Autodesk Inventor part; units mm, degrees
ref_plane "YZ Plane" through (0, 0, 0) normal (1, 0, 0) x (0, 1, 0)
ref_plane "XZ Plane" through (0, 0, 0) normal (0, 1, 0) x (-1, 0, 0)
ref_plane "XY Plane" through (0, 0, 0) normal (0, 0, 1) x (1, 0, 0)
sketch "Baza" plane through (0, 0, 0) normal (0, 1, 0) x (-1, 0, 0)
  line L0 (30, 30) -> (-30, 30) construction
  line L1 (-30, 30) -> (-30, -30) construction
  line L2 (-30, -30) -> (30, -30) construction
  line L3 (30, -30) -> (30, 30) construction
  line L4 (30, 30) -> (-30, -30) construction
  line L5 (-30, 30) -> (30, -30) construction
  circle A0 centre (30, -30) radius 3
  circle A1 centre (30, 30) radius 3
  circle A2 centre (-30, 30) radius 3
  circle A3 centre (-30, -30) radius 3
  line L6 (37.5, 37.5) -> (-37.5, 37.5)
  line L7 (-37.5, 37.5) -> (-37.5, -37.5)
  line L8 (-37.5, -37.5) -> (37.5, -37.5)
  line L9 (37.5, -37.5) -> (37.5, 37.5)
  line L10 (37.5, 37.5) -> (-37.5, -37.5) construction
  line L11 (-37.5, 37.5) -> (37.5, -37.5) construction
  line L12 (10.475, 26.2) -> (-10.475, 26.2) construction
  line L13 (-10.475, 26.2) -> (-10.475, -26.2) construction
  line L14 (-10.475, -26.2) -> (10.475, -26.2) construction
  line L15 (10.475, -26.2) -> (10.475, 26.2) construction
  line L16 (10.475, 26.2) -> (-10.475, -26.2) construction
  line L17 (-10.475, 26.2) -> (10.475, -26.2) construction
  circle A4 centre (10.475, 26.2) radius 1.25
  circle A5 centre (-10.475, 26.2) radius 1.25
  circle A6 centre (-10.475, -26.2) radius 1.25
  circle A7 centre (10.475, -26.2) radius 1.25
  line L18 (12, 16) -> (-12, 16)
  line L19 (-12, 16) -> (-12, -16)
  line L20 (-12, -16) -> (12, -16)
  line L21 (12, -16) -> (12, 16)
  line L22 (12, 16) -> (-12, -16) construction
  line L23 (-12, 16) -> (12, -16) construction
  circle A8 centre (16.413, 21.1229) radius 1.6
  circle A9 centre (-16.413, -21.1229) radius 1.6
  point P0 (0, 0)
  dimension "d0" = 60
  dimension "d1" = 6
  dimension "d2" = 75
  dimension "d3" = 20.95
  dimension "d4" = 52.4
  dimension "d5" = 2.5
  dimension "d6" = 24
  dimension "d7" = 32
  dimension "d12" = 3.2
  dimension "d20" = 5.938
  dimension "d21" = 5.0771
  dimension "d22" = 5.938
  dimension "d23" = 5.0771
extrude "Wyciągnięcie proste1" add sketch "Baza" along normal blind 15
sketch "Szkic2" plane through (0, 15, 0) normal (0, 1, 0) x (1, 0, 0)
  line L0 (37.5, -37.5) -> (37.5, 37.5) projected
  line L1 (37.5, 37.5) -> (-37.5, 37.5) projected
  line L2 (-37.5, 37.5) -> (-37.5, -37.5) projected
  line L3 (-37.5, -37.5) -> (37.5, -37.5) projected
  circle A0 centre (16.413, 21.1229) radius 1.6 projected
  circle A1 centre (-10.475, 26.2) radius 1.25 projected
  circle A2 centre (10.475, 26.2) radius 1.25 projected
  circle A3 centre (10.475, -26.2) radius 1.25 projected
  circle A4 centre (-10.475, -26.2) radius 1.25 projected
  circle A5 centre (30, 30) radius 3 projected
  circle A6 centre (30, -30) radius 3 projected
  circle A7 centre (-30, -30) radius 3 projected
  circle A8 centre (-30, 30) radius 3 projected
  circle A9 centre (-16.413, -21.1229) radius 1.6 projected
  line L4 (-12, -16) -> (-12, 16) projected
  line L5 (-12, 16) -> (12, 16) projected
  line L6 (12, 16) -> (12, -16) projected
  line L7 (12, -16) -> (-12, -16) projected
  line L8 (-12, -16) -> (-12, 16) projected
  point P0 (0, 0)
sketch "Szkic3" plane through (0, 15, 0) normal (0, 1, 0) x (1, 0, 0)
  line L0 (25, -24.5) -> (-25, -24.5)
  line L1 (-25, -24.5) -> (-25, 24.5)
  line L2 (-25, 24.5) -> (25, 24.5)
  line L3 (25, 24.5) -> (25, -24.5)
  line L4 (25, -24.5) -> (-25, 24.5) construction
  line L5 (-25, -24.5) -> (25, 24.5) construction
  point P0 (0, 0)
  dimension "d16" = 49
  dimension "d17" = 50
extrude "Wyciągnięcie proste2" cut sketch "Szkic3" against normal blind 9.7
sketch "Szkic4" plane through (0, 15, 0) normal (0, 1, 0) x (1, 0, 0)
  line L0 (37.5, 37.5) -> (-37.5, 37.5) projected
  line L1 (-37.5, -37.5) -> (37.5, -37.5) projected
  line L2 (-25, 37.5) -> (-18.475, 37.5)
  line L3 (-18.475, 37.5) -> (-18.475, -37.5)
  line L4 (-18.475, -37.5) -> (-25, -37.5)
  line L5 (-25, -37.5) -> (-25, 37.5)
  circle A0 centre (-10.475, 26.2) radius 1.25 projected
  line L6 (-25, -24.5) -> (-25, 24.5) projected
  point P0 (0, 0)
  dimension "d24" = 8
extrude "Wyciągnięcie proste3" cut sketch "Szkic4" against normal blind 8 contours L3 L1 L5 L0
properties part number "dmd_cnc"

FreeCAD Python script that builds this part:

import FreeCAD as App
import Part
import Sketcher


def add_polygon(sketch, points):
    """Adds a closed chain of lines whose ends are joined by coincident constraints."""
    first, n = sketch.GeometryCount, len(points)
    for a, b in zip(points, points[1:] + points[:1]):
        sketch.addGeometry(Part.LineSegment(App.Vector(*a, 0), App.Vector(*b, 0)), False)
    for i in range(n):
        sketch.addConstraint(Sketcher.Constraint("Coincident", first + i, 2, first + (i + 1) % n, 1))

doc = App.newDocument("Part")
body = doc.addObject("PartDesign::Body", "Body")

# Sketch on XZ plane
sketch1 = body.newObject("Sketcher::SketchObject", "Sketch")
sketch1.AttachmentSupport = (doc.getObject("XZ_Plane"), [""])
sketch1.MapMode = "FlatFace"
add_polygon(sketch1, [(-37.5, -37.5), (-37.5, 37.5), (37.5, 37.5), (37.5, -37.5)])  # lines 0-3
sketch1.addGeometry(Part.Circle(App.Vector(30, -30, 0), App.Vector(0, 0, 1), 3), False)  # 4
sketch1.addGeometry(Part.Circle(App.Vector(10.5, -26.2, 0), App.Vector(0, 0, 1), 1.2), False)  # 5
sketch1.addGeometry(Part.Circle(App.Vector(16.4, -21.1, 0), App.Vector(0, 0, 1), 1.6), False)  # 6
sketch1.addGeometry(Part.Circle(App.Vector(-10.5, -26.2, 0), App.Vector(0, 0, 1), 1.2), False)  # 7
sketch1.addGeometry(Part.Circle(App.Vector(-30, -30, 0), App.Vector(0, 0, 1), 3), False)  # 8
sketch1.addGeometry(Part.Circle(App.Vector(30, 30, 0), App.Vector(0, 0, 1), 3), False)  # 9
sketch1.addGeometry(Part.Circle(App.Vector(10.5, 26.2, 0), App.Vector(0, 0, 1), 1.2), False)  # 10
add_polygon(sketch1, [(12, 16), (-12, 16), (-12, -16), (12, -16)])  # lines 11-14
sketch1.addGeometry(Part.Circle(App.Vector(-16.4, 21.1, 0), App.Vector(0, 0, 1), 1.6), False)  # 15
sketch1.addGeometry(Part.Circle(App.Vector(-10.5, 26.2, 0), App.Vector(0, 0, 1), 1.2), False)  # 16
sketch1.addGeometry(Part.Circle(App.Vector(-30, 30, 0), App.Vector(0, 0, 1), 3), False)  # 17
sketch1.addConstraint(Sketcher.Constraint("Vertical", 0))
sketch1.addConstraint(Sketcher.Constraint("Horizontal", 1))
sketch1.addConstraint(Sketcher.Constraint("Vertical", 2))
sketch1.addConstraint(Sketcher.Constraint("Horizontal", 3))
sketch1.addConstraint(Sketcher.Constraint("Horizontal", 11))
sketch1.addConstraint(Sketcher.Constraint("Vertical", 12))
sketch1.addConstraint(Sketcher.Constraint("Horizontal", 13))
sketch1.addConstraint(Sketcher.Constraint("Vertical", 14))
sketch1.addConstraint(Sketcher.Constraint("Equal", 5, 7))
sketch1.addConstraint(Sketcher.Constraint("Equal", 4, 8))
sketch1.addConstraint(Sketcher.Constraint("Equal", 8, 9))
sketch1.addConstraint(Sketcher.Constraint("Equal", 7, 10))
sketch1.addConstraint(Sketcher.Constraint("Equal", 6, 15))
sketch1.addConstraint(Sketcher.Constraint("Equal", 10, 16))
sketch1.addConstraint(Sketcher.Constraint("Equal", 9, 17))
sketch1.addConstraint(Sketcher.Constraint("Symmetric", 8, 3, 9, 3, -1, 1))
sketch1.addConstraint(Sketcher.Constraint("Symmetric", 7, 3, 10, 3, -1, 1))
sketch1.addConstraint(Sketcher.Constraint("Symmetric", 6, 3, 15, 3, -1, 1))
sketch1.addConstraint(Sketcher.Constraint("Symmetric", 5, 3, 16, 3, -1, 1))
sketch1.addConstraint(Sketcher.Constraint("Symmetric", 4, 3, 17, 3, -1, 1))
sketch1.addConstraint(Sketcher.Constraint("Symmetric", 0, 2, 2, 2, -1, 1))
sketch1.addConstraint(Sketcher.Constraint("Symmetric", 11, 2, 13, 2, -1, 1))
sketch1.addConstraint(Sketcher.Constraint("Symmetric", 5, 3, 7, 3, -2))
sketch1.addConstraint(Sketcher.Constraint("Symmetric", 4, 3, 8, 3, -2))
sketch1.addConstraint(Sketcher.Constraint("Equal", 3, 0))
sketch1.addConstraint(Sketcher.Constraint("Diameter", 4, 6.0))
sketch1.addConstraint(Sketcher.Constraint("Diameter", 5, 2.5))
sketch1.addConstraint(Sketcher.Constraint("Diameter", 6, 3.2))
sketch1.addConstraint(Sketcher.Constraint("DistanceX", 1, 1, 1, 2, 75.0))
sketch1.addConstraint(Sketcher.Constraint("DistanceX", 11, 2, 11, 1, 24.0))
sketch1.addConstraint(Sketcher.Constraint("DistanceY", 12, 2, 12, 1, 32.0))
sketch1.addConstraint(Sketcher.Constraint("DistanceX", 8, 3, 4, 3, 60.0))
sketch1.addConstraint(Sketcher.Constraint("DistanceY", 4, 3, 9, 3, 60.0))
sketch1.addConstraint(Sketcher.Constraint("DistanceY", 5, 3, 10, 3, 52.4))
sketch1.addConstraint(Sketcher.Constraint("DistanceX", 7, 3, 5, 3, 20.95))
sketch1.addConstraint(Sketcher.Constraint("DistanceX", 5, 3, 6, 3, 5.938))
sketch1.addConstraint(Sketcher.Constraint("DistanceY", 5, 3, 6, 3, 5.077))
pad1 = body.newObject("PartDesign::Pad", "Pad")
pad1.Profile = sketch1
pad1.Length = 15
pad1.Reversed = True

# Sketch on XZ plane
sketch2 = body.newObject("Sketcher::SketchObject", "Sketch001")
sketch2.AttachmentSupport = (doc.getObject("XZ_Plane"), [""])
sketch2.MapMode = "FlatFace"
sketch2.AttachmentOffset = App.Placement(App.Vector(0, 0, -15), App.Rotation())
add_polygon(sketch2, [(-25, 24), (25, 24), (25, -24), (-25, -24)])  # lines 0-3
sketch2.addConstraint(Sketcher.Constraint("Horizontal", 0))
sketch2.addConstraint(Sketcher.Constraint("Vertical", 1))
sketch2.addConstraint(Sketcher.Constraint("Horizontal", 2))
sketch2.addConstraint(Sketcher.Constraint("Vertical", 3))
sketch2.addConstraint(Sketcher.Constraint("Symmetric", 0, 2, 2, 2, -1, 1))
sketch2.addConstraint(Sketcher.Constraint("DistanceX", 0, 1, 0, 2, 50.0))
sketch2.addConstraint(Sketcher.Constraint("DistanceY", 1, 2, 1, 1, 49.0))
pocket1 = body.newObject("PartDesign::Pocket", "Pocket")
pocket1.Profile = sketch2
pocket1.Length = 9.7
pocket1.Reversed = True

# Sketch on XZ plane
sketch3 = body.newObject("Sketcher::SketchObject", "Sketch002")
sketch3.AttachmentSupport = (doc.getObject("XZ_Plane"), [""])
sketch3.MapMode = "FlatFace"
sketch3.AttachmentOffset = App.Placement(App.Vector(0, 0, -15), App.Rotation())
add_polygon(sketch3, [(-18, 38), (-18, -38), (-25, -38), (-25, 38)])  # lines 0-3
sketch3.addConstraint(Sketcher.Constraint("Vertical", 0))
sketch3.addConstraint(Sketcher.Constraint("Horizontal", 1))
sketch3.addConstraint(Sketcher.Constraint("Vertical", 2))
sketch3.addConstraint(Sketcher.Constraint("Horizontal", 3))
sketch3.addConstraint(Sketcher.Constraint("DistanceY", 0, 2, 0, 1, 75.0))
sketch3.addConstraint(Sketcher.Constraint("DistanceX", 1, 2, -1, 1, 25.0))
sketch3.addConstraint(Sketcher.Constraint("DistanceY", 0, 2, -1, 1, 37.5))
sketch3.addConstraint(Sketcher.Constraint("DistanceX", 1, 2, 1, 1, 6.525))
pocket2 = body.newObject("PartDesign::Pocket", "Pocket001")
pocket2.Profile = sketch3
pocket2.Length = 8
pocket2.Reversed = True

doc.recompute()
